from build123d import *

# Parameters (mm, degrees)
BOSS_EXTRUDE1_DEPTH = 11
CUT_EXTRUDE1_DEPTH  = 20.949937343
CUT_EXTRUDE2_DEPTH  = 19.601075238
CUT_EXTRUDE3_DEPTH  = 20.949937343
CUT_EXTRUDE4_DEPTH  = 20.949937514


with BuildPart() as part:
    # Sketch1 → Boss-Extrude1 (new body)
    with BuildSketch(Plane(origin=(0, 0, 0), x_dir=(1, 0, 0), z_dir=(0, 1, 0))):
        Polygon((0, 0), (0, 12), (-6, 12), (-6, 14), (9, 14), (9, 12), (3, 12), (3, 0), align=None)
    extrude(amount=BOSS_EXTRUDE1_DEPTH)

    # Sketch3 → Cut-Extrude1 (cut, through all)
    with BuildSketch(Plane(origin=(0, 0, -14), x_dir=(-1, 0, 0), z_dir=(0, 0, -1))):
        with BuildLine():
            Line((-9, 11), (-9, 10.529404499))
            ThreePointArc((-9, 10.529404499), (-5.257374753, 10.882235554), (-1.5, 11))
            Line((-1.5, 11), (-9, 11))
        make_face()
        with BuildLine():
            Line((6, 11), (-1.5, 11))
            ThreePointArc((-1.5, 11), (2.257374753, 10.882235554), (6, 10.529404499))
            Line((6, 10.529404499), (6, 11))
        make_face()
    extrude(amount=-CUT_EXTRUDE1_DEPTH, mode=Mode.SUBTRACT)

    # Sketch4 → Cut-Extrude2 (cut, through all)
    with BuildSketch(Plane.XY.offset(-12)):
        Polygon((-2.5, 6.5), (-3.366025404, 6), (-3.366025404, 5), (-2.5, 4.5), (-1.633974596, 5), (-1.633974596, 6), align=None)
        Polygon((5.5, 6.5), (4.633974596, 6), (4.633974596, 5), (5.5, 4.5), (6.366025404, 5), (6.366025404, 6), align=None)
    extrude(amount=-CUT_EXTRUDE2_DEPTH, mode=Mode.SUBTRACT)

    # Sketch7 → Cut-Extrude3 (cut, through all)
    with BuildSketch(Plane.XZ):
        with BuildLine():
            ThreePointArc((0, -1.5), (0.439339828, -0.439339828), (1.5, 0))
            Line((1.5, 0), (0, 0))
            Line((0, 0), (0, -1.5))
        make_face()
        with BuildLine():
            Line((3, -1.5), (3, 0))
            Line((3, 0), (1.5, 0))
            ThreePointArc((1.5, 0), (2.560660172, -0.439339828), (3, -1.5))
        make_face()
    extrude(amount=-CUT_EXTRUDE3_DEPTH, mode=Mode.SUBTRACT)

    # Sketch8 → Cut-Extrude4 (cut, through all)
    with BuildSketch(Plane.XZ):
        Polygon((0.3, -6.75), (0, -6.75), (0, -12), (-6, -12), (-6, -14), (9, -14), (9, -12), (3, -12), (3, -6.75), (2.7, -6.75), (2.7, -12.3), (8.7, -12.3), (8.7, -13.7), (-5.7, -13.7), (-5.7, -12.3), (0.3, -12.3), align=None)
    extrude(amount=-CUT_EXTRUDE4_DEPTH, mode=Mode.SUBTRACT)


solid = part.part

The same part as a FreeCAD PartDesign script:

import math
import FreeCAD as App
import Part
import Sketcher

V = App.Vector
Q = App.Units.Quantity


def add_polygon(sketch, points):
    """Adds a closed chain of lines whose ends are joined by coincident constraints."""
    first, n = sketch.GeometryCount, len(points)
    for a, b in zip(points, points[1:] + points[:1]):
        sketch.addGeometry(Part.LineSegment(App.Vector(*a, 0), App.Vector(*b, 0)), False)
    for i in range(n):
        sketch.addConstraint(Sketcher.Constraint("Coincident", first + i, 2, first + (i + 1) % n, 1))

doc = App.newDocument("Part")
body = doc.addObject("PartDesign::Body", "Body")

sketch1 = body.newObject("Sketcher::SketchObject", "Sketch")
sketch1.AttachmentSupport = (doc.getObject("XZ_Plane"), [""])
sketch1.MapMode = "FlatFace"
add_polygon(sketch1, [(0, -12), (0, 0), (3, 0), (3, -12), (9, -12), (9, -14), (-6, -14), (-6, -12)])
sketch1.addConstraint(Sketcher.Constraint("Vertical", 0))
sketch1.addConstraint(Sketcher.Constraint("Horizontal", 1))
sketch1.addConstraint(Sketcher.Constraint("Vertical", 2))
sketch1.addConstraint(Sketcher.Constraint("Horizontal", 3))
sketch1.addConstraint(Sketcher.Constraint("Vertical", 4))
sketch1.addConstraint(Sketcher.Constraint("Horizontal", 5))
sketch1.addConstraint(Sketcher.Constraint("Vertical", 6))
sketch1.addConstraint(Sketcher.Constraint("Horizontal", 7))
sketch1.addConstraint(Sketcher.Constraint("Coincident", 0, 2, -1, 1))
sketch1.addConstraint(Sketcher.Constraint("Horizontal", 3, 2, 6, 2))
sketch1.addConstraint(Sketcher.Constraint("Equal", 3, 7))
sketch1.addConstraint(Sketcher.Constraint("DistanceX", 1, 1, 1, 2, Q("3 mm")))
sketch1.addConstraint(Sketcher.Constraint("DistanceX", 3, 1, 3, 2, Q("6 mm")))
sketch1.addConstraint(Sketcher.Constraint("DistanceY", 0, 1, 0, 2, Q("12 mm")))
sketch1.addConstraint(Sketcher.Constraint("DistanceY", 4, 2, 4, 1, Q("2 mm")))
pad1 = body.newObject("PartDesign::Pad", "Pad")
pad1.Profile = sketch1
pad1.Length = 11
pad1.Reversed = True

sketch2 = body.newObject("Sketcher::SketchObject", "Sketch001")
sketch2.AttachmentSupport = (doc.getObject("XY_Plane"), [""])
sketch2.MapMode = "FlatFace"
sketch2.AttachmentOffset = App.Placement(V(0, 0, -14), App.Rotation())
sketch2.addGeometry(Part.LineSegment(V(9, 11, 0), V(9, 10.53, 0)), False)
sketch2.addGeometry(Part.ArcOfCircle(Part.Circle(V(1.5, -49, 0), V(0, 0, 1), 60), math.radians(82.82), math.radians(90)), False)
sketch2.addGeometry(Part.LineSegment(V(1.5, 11, 0), V(9, 11, 0)), False)
sketch2.addGeometry(Part.LineSegment(V(-6, 11, 0), V(1.5, 11, 0)), False)
sketch2.addGeometry(Part.ArcOfCircle(Part.Circle(V(1.5, -49, 0), V(0, 0, 1), 60), math.radians(90), math.radians(97.18)), False)
sketch2.addGeometry(Part.LineSegment(V(-6, 10.53, 0), V(-6, 11, 0)), False)
sketch2.addConstraint(Sketcher.Constraint("Coincident", 0, 2, 1, 1))
sketch2.addConstraint(Sketcher.Constraint("Tangent", 1, 2, 2, 1))
sketch2.addConstraint(Sketcher.Constraint("Coincident", 2, 2, 0, 1))
sketch2.addConstraint(Sketcher.Constraint("Tangent", 3, 2, 4, 1))
sketch2.addConstraint(Sketcher.Constraint("Coincident", 4, 2, 5, 1))
sketch2.addConstraint(Sketcher.Constraint("Coincident", 5, 2, 3, 1))
sketch2.addConstraint(Sketcher.Constraint("Vertical", 0))
sketch2.addConstraint(Sketcher.Constraint("Horizontal", 2))
sketch2.addConstraint(Sketcher.Constraint("Horizontal", 3))
sketch2.addConstraint(Sketcher.Constraint("Vertical", 5))
sketch2.addConstraint(Sketcher.Constraint("Coincident", 4, 3, 1, 3))
sketch2.addConstraint(Sketcher.Constraint("Equal", 1, 4))
sketch2.addConstraint(Sketcher.Constraint("Horizontal", 0, 2, 4, 2))
sketch2.addConstraint(Sketcher.Constraint("Radius", 1, Q("60 mm")))
sketch2.addConstraint(Sketcher.Constraint("DistanceX", 2, 1, 2, 2, Q("7.5 mm")))
sketch2.addConstraint(Sketcher.Constraint("DistanceY", 1, 3, -1, 1, Q("49 mm")))
sketch2.addConstraint(Sketcher.Constraint("DistanceX", -1, 1, 0, 2, Q("9 mm")))
pocket1 = body.newObject("PartDesign::Pocket", "Pocket")
pocket1.Profile = sketch2
pocket1.Type = "ThroughAll"
pocket1.Reversed = True

sketch3 = body.newObject("Sketcher::SketchObject", "Sketch002")
sketch3.AttachmentSupport = (doc.getObject("XY_Plane"), [""])
sketch3.MapMode = "FlatFace"
sketch3.AttachmentOffset = App.Placement(V(0, 0, -12), App.Rotation())
add_polygon(sketch3, [(-2.5, 6.5), (-3.4, 6), (-3.4, 5), (-2.5, 4.5), (-1.6, 5), (-1.6, 6)])
add_polygon(sketch3, [(5.5, 6.5), (4.6, 6), (4.6, 5), (5.5, 4.5), (6.4, 5), (6.4, 6)])
sketch3.addConstraint(Sketcher.Constraint("Vertical", 1))
sketch3.addConstraint(Sketcher.Constraint("Vertical", 4))
sketch3.addConstraint(Sketcher.Constraint("Vertical", 7))
sketch3.addConstraint(Sketcher.Constraint("Vertical", 10))
sketch3.addConstraint(Sketcher.Constraint("Parallel", 0, 3))
sketch3.addConstraint(Sketcher.Constraint("Parallel", 2, 5))
sketch3.addConstraint(Sketcher.Constraint("Parallel", 3, 6))
sketch3.addConstraint(Sketcher.Constraint("Parallel", 5, 8))
sketch3.addConstraint(Sketcher.Constraint("Parallel", 6, 9))
sketch3.addConstraint(Sketcher.Constraint("Parallel", 8, 11))
sketch3.addConstraint(Sketcher.Constraint("Horizontal", 1, 2, 3, 2))
sketch3.addConstraint(Sketcher.Constraint("Horizontal", 0, 2, 4, 2))
sketch3.addConstraint(Sketcher.Constraint("Horizontal", 4, 2, 6, 2))
sketch3.addConstraint(Sketcher.Constraint("Horizontal", 3, 2, 7, 2))
sketch3.addConstraint(Sketcher.Constraint("Horizontal", 2, 2, 8, 2))
sketch3.addConstraint(Sketcher.Constraint("Horizontal", 7, 2, 9, 2))
sketch3.addConstraint(Sketcher.Constraint("Horizontal", 6, 2, 10, 2))
sketch3.addConstraint(Sketcher.Constraint("Vertical", 2, 2, 5, 2))
sketch3.addConstraint(Sketcher.Constraint("DistanceY", 1, 2, 1, 1, Q("1 mm")))
sketch3.addConstraint(Sketcher.Constraint("Angle", 0, Q("-150 deg")))
sketch3.addConstraint(Sketcher.Constraint("Distance", 0, Q("1 mm")))
sketch3.addConstraint(Sketcher.Constraint("DistanceY", -1, 1, 0, 2, Q("6 mm")))
sketch3.addConstraint(Sketcher.Constraint("DistanceX", 0, 2, 6, 2, Q("8 mm")))
sketch3.addConstraint(Sketcher.Constraint("DistanceX", 2, 2, -1, 1, Q("2.5 mm")))
pocket2 = body.newObject("PartDesign::Pocket", "Pocket001")
pocket2.Profile = sketch3
pocket2.Type = "ThroughAll"

sketch4 = body.newObject("Sketcher::SketchObject", "Sketch003")
sketch4.AttachmentSupport = (doc.getObject("XZ_Plane"), [""])
sketch4.MapMode = "FlatFace"
sketch4.addGeometry(Part.ArcOfCircle(Part.Circle(V(1.5, -1.5, 0), V(0, 0, 1), 1.5), math.radians(90), math.radians(180)), False)
sketch4.addGeometry(Part.LineSegment(V(1.5, 0, 0), V(0, 0, 0)), False)
sketch4.addGeometry(Part.LineSegment(V(0, 0, 0), V(0, -1.5, 0)), False)
sketch4.addGeometry(Part.LineSegment(V(3, -1.5, 0), V(3, 0, 0)), False)
sketch4.addGeometry(Part.LineSegment(V(3, 0, 0), V(1.5, 0, 0)), False)
sketch4.addGeometry(Part.ArcOfCircle(Part.Circle(V(1.5, -1.5, 0), V(0, 0, 1), 1.5), math.radians(0), math.radians(90)), False)
sketch4.addConstraint(Sketcher.Constraint("Tangent", 0, 1, 1, 1))
sketch4.addConstraint(Sketcher.Constraint("Coincident", 1, 2, 2, 1))
sketch4.addConstraint(Sketcher.Constraint("Tangent", 2, 2, 0, 2))
sketch4.addConstraint(Sketcher.Constraint("Coincident", 3, 2, 4, 1))
sketch4.addConstraint(Sketcher.Constraint("Tangent", 4, 2, 5, 2))
sketch4.addConstraint(Sketcher.Constraint("Tangent", 5, 1, 3, 1))
sketch4.addConstraint(Sketcher.Constraint("Horizontal", 1))
sketch4.addConstraint(Sketcher.Constraint("Vertical", 2))
sketch4.addConstraint(Sketcher.Constraint("Vertical", 3))
sketch4.addConstraint(Sketcher.Constraint("Horizontal", 4))
sketch4.addConstraint(Sketcher.Constraint("Coincident", 1, 2, -1, 1))
sketch4.addConstraint(Sketcher.Constraint("Coincident", 5, 3, 0, 3))
sketch4.addConstraint(Sketcher.Constraint("Equal", 0, 5))
sketch4.addConstraint(Sketcher.Constraint("Radius", 0, Q("1.5 mm")))
pocket3 = body.newObject("PartDesign::Pocket", "Pocket002")
pocket3.Profile = sketch4
pocket3.Type = "ThroughAll"

sketch5 = body.newObject("Sketcher::SketchObject", "Sketch004")
sketch5.AttachmentSupport = (doc.getObject("XZ_Plane"), [""])
sketch5.MapMode = "FlatFace"
add_polygon(sketch5, [(0.3, -6.75), (0, -6.75), (0, -12), (-6, -12), (-6, -14), (9, -14), (9, -12), (3, -12), (3, -6.75), (2.7, -6.75), (2.7, -12.3), (8.7, -12.3), (8.7, -13.7), (-5.7, -13.7), (-5.7, -12.3), (0.3, -12.3)])
sketch5.addConstraint(Sketcher.Constraint("Horizontal", 0))
sketch5.addConstraint(Sketcher.Constraint("Vertical", 1))
sketch5.addConstraint(Sketcher.Constraint("Horizontal", 2))
sketch5.addConstraint(Sketcher.Constraint("Vertical", 3))
sketch5.addConstraint(Sketcher.Constraint("Horizontal", 4))
sketch5.addConstraint(Sketcher.Constraint("Vertical", 5))
sketch5.addConstraint(Sketcher.Constraint("Horizontal", 6))
sketch5.addConstraint(Sketcher.Constraint("Vertical", 7))
sketch5.addConstraint(Sketcher.Constraint("Horizontal", 8))
sketch5.addConstraint(Sketcher.Constraint("Vertical", 9))
sketch5.addConstraint(Sketcher.Constraint("Horizontal", 10))
sketch5.addConstraint(Sketcher.Constraint("Vertical", 11))
sketch5.addConstraint(Sketcher.Constraint("Horizontal", 12))
sketch5.addConstraint(Sketcher.Constraint("Vertical", 13))
sketch5.addConstraint(Sketcher.Constraint("Horizontal", 14))
sketch5.addConstraint(Sketcher.Constraint("Vertical", 15))
sketch5.addConstraint(Sketcher.Constraint("PointOnObject", 0, 2, -2))
sketch5.addConstraint(Sketcher.Constraint("Horizontal", 2, 2, 5, 2))
sketch5.addConstraint(Sketcher.Constraint("Horizontal", 0, 2, 7, 2))
sketch5.addConstraint(Sketcher.Constraint("Horizontal", 10, 2, 13, 2))
sketch5.addConstraint(Sketcher.Constraint("Equal", 2, 6))
sketch5.addConstraint(Sketcher.Constraint("Equal", 0, 8))
sketch5.addConstraint(Sketcher.Constraint("Equal", 6, 10))
sketch5.addConstraint(Sketcher.Constraint("Equal", 10, 14))
sketch5.addConstraint(Sketcher.Constraint("DistanceX", 2, 2, 2, 1, Q("6 mm")))
sketch5.addConstraint(Sketcher.Constraint("DistanceX", 4, 1, 4, 2, Q("15 mm")))
sketch5.addConstraint(Sketcher.Constraint("DistanceY", 3, 2, 3, 1, Q("2 mm")))
sketch5.addConstraint(Sketcher.Constraint("DistanceX", 0, 2, 0, 1, Q("0.3 mm")))
sketch5.addConstraint(Sketcher.Constraint("DistanceY", 11, 2, 11, 1, Q("1.4 mm")))
sketch5.addConstraint(Sketcher.Constraint("DistanceY", 1, 2, -1, 1, Q("12 mm")))
sketch5.addConstraint(Sketcher.Constraint("DistanceY", 1, 2, 1, 1, Q("5.25 mm")))
sketch5.addConstraint(Sketcher.Constraint("DistanceY", 9, 2, 9, 1, Q("5.55 mm")))
pocket4 = body.newObject("PartDesign::Pocket", "Pocket003")
pocket4.Profile = sketch5
pocket4.Type = "ThroughAll"

doc.recompute()
